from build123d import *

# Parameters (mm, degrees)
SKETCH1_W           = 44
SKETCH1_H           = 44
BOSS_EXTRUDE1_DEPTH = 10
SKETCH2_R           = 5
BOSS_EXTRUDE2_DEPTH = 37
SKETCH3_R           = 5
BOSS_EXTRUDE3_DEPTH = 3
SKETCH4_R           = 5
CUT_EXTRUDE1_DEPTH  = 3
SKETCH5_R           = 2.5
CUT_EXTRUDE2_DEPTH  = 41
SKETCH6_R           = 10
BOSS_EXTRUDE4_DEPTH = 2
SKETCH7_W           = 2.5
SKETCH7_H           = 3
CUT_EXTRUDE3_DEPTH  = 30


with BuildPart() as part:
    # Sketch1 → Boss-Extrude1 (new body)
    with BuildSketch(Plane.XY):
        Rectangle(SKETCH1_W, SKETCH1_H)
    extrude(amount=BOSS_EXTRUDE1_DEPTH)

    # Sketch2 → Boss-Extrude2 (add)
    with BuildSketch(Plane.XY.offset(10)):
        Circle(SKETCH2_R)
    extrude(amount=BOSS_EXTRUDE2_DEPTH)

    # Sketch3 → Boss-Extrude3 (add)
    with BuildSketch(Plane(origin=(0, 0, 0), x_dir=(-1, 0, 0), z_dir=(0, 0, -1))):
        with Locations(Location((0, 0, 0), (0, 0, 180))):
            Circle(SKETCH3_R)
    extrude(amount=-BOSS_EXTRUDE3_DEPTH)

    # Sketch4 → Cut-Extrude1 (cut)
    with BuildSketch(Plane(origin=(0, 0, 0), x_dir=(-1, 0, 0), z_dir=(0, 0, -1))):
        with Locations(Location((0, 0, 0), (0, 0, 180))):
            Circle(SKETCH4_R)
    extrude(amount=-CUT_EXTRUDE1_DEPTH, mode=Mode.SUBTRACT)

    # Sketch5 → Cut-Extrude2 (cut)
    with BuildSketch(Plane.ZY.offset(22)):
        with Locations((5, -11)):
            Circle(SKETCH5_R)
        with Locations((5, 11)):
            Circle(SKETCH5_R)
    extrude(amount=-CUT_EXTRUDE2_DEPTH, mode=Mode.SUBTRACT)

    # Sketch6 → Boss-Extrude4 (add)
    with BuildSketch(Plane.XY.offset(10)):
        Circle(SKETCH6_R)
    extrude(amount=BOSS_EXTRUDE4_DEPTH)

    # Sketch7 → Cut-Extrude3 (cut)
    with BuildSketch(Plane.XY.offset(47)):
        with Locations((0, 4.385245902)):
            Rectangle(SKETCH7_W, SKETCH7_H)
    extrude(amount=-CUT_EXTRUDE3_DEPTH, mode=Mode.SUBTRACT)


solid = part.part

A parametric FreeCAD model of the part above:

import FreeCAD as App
import Part
import Sketcher
from FreeCAD import Vector


def add_polygon(sketch, points):
    """Adds a closed chain of lines whose ends are joined by coincident constraints."""
    first, n = sketch.GeometryCount, len(points)
    for a, b in zip(points, points[1:] + points[:1]):
        sketch.addGeometry(Part.LineSegment(App.Vector(*a, 0), App.Vector(*b, 0)), False)
    for i in range(n):
        sketch.addConstraint(Sketcher.Constraint("Coincident", first + i, 2, first + (i + 1) % n, 1))

doc = App.newDocument("Part")
body = doc.addObject("PartDesign::Body", "Body")

sketch1 = body.newObject("Sketcher::SketchObject", "Sketch")
sketch1.AttachmentSupport = (doc.getObject("XY_Plane"), [""])
sketch1.MapMode = "FlatFace"
add_polygon(sketch1, [(-22, 22), (-22, -22), (22, -22), (22, 22)])
sketch1.addConstraint([
    Sketcher.Constraint("Vertical", 0),
    Sketcher.Constraint("Horizontal", 1),
    Sketcher.Constraint("Vertical", 2),
    Sketcher.Constraint("Horizontal", 3),
    Sketcher.Constraint("Symmetric", 0, 2, 2, 2, -1, 1),
    Sketcher.Constraint("Equal", 3, 0),
    Sketcher.Constraint("DistanceX", 1, 1, 1, 2, 44.0),
])
pad1 = body.newObject("PartDesign::Pad", "Pad")
pad1.Profile = sketch1
pad1.Length = 10

sketch2 = body.newObject("Sketcher::SketchObject", "Sketch001")
sketch2.AttachmentSupport = (doc.getObject("XY_Plane"), [""])
sketch2.MapMode = "FlatFace"
sketch2.AttachmentOffset = App.Placement(Vector(0, 0, 10), App.Rotation())
sketch2.addGeometry(Part.Circle(Vector(0, 0, 0), Vector(0, 0, 1), 5), False)
sketch2.addConstraint([
    Sketcher.Constraint("Coincident", 0, 3, -1, 1),
    Sketcher.Constraint("Diameter", 0, 10.0),
])
pad2 = body.newObject("PartDesign::Pad", "Pad001")
pad2.Profile = sketch2
pad2.Length = 37

sketch3 = body.newObject("Sketcher::SketchObject", "Sketch002")
sketch3.AttachmentSupport = (doc.getObject("XY_Plane"), [""])
sketch3.MapMode = "FlatFace"
sketch3.addGeometry(Part.Circle(Vector(0, 0, 0), Vector(0, 0, 1), 5), False)
sketch3.addConstraint([
    Sketcher.Constraint("Coincident", 0, 3, -1, 1),
    Sketcher.Constraint("Diameter", 0, 10.0),
])
pad3 = body.newObject("PartDesign::Pad", "Pad002")
pad3.Profile = sketch3
pad3.Length = 3

sketch4 = body.newObject("Sketcher::SketchObject", "Sketch003")
sketch4.AttachmentSupport = (doc.getObject("XY_Plane"), [""])
sketch4.MapMode = "FlatFace"
sketch4.addGeometry(Part.Circle(Vector(0, 0, 0), Vector(0, 0, 1), 5), False)
sketch4.addConstraint([
    Sketcher.Constraint("Coincident", 0, 3, -1, 1),
    Sketcher.Constraint("Diameter", 0, 10.0),
])
pocket1 = body.newObject("PartDesign::Pocket", "Pocket")
pocket1.Profile = sketch4
pocket1.Length = 3
pocket1.Reversed = True

sketch5 = body.newObject("Sketcher::SketchObject", "Sketch004")
sketch5.AttachmentSupport = (doc.getObject("YZ_Plane"), [""])
sketch5.MapMode = "FlatFace"
sketch5.AttachmentOffset = App.Placement(Vector(0, 0, -22), App.Rotation())
sketch5.addGeometry([
    Part.Circle(Vector(-11, 5, 0), Vector(0, 0, 1), 2.5),
    Part.Circle(Vector(11, 5, 0), Vector(0, 0, 1), 2.5),
], False)
sketch5.addConstraint([
    Sketcher.Constraint("Equal", 0, 1),
    Sketcher.Constraint("Symmetric", 0, 3, 1, 3, -2),
    Sketcher.Constraint("Diameter", 0, 5.0),
    Sketcher.Constraint("DistanceX", 0, 3, -1, 1, 11.0),
    Sketcher.Constraint("DistanceY", -1, 1, 0, 3, 5.0),
])
pocket2 = body.newObject("PartDesign::Pocket", "Pocket001")
pocket2.Profile = sketch5
pocket2.Length = 41
pocket2.Reversed = True

sketch6 = body.newObject("Sketcher::SketchObject", "Sketch005")
sketch6.AttachmentSupport = (doc.getObject("XY_Plane"), [""])
sketch6.MapMode = "FlatFace"
sketch6.AttachmentOffset = App.Placement(Vector(0, 0, 10), App.Rotation())
sketch6.addGeometry(Part.Circle(Vector(0, 0, 0), Vector(0, 0, 1), 10), False)
sketch6.addConstraint([
    Sketcher.Constraint("Coincident", 0, 3, -1, 1),
    Sketcher.Constraint("Diameter", 0, 20.0),
])
pad4 = body.newObject("PartDesign::Pad", "Pad003")
pad4.Profile = sketch6
pad4.Length = 2

sketch7 = body.newObject("Sketcher::SketchObject", "Sketch006")
sketch7.AttachmentSupport = (doc.getObject("XY_Plane"), [""])
sketch7.MapMode = "FlatFace"
sketch7.AttachmentOffset = App.Placement(Vector(0, 0, 47), App.Rotation())
add_polygon(sketch7, [(-1.25, 5.885246), (-1.25, 2.885246), (1.25, 2.885246), (1.25, 5.885246)])
sketch7.addConstraint([
    Sketcher.Constraint("Vertical", 0),
    Sketcher.Constraint("Horizontal", 1),
    Sketcher.Constraint("Vertical", 2),
    Sketcher.Constraint("Horizontal", 3),
    Sketcher.Constraint("DistanceY", 0, 2, 0, 1, 3.0),
    Sketcher.Constraint("DistanceX", 1, 1, 1, 2, 2.5),
    Sketcher.Constraint("DistanceX", 0, 2, -1, 1, 1.25),
    Sketcher.Constraint("DistanceY", -1, 1, 0, 2, 2.885246),
])
pocket3 = body.newObject("PartDesign::Pocket", "Pocket002")
pocket3.Profile = sketch7
pocket3.Length = 30

doc.recompute()
